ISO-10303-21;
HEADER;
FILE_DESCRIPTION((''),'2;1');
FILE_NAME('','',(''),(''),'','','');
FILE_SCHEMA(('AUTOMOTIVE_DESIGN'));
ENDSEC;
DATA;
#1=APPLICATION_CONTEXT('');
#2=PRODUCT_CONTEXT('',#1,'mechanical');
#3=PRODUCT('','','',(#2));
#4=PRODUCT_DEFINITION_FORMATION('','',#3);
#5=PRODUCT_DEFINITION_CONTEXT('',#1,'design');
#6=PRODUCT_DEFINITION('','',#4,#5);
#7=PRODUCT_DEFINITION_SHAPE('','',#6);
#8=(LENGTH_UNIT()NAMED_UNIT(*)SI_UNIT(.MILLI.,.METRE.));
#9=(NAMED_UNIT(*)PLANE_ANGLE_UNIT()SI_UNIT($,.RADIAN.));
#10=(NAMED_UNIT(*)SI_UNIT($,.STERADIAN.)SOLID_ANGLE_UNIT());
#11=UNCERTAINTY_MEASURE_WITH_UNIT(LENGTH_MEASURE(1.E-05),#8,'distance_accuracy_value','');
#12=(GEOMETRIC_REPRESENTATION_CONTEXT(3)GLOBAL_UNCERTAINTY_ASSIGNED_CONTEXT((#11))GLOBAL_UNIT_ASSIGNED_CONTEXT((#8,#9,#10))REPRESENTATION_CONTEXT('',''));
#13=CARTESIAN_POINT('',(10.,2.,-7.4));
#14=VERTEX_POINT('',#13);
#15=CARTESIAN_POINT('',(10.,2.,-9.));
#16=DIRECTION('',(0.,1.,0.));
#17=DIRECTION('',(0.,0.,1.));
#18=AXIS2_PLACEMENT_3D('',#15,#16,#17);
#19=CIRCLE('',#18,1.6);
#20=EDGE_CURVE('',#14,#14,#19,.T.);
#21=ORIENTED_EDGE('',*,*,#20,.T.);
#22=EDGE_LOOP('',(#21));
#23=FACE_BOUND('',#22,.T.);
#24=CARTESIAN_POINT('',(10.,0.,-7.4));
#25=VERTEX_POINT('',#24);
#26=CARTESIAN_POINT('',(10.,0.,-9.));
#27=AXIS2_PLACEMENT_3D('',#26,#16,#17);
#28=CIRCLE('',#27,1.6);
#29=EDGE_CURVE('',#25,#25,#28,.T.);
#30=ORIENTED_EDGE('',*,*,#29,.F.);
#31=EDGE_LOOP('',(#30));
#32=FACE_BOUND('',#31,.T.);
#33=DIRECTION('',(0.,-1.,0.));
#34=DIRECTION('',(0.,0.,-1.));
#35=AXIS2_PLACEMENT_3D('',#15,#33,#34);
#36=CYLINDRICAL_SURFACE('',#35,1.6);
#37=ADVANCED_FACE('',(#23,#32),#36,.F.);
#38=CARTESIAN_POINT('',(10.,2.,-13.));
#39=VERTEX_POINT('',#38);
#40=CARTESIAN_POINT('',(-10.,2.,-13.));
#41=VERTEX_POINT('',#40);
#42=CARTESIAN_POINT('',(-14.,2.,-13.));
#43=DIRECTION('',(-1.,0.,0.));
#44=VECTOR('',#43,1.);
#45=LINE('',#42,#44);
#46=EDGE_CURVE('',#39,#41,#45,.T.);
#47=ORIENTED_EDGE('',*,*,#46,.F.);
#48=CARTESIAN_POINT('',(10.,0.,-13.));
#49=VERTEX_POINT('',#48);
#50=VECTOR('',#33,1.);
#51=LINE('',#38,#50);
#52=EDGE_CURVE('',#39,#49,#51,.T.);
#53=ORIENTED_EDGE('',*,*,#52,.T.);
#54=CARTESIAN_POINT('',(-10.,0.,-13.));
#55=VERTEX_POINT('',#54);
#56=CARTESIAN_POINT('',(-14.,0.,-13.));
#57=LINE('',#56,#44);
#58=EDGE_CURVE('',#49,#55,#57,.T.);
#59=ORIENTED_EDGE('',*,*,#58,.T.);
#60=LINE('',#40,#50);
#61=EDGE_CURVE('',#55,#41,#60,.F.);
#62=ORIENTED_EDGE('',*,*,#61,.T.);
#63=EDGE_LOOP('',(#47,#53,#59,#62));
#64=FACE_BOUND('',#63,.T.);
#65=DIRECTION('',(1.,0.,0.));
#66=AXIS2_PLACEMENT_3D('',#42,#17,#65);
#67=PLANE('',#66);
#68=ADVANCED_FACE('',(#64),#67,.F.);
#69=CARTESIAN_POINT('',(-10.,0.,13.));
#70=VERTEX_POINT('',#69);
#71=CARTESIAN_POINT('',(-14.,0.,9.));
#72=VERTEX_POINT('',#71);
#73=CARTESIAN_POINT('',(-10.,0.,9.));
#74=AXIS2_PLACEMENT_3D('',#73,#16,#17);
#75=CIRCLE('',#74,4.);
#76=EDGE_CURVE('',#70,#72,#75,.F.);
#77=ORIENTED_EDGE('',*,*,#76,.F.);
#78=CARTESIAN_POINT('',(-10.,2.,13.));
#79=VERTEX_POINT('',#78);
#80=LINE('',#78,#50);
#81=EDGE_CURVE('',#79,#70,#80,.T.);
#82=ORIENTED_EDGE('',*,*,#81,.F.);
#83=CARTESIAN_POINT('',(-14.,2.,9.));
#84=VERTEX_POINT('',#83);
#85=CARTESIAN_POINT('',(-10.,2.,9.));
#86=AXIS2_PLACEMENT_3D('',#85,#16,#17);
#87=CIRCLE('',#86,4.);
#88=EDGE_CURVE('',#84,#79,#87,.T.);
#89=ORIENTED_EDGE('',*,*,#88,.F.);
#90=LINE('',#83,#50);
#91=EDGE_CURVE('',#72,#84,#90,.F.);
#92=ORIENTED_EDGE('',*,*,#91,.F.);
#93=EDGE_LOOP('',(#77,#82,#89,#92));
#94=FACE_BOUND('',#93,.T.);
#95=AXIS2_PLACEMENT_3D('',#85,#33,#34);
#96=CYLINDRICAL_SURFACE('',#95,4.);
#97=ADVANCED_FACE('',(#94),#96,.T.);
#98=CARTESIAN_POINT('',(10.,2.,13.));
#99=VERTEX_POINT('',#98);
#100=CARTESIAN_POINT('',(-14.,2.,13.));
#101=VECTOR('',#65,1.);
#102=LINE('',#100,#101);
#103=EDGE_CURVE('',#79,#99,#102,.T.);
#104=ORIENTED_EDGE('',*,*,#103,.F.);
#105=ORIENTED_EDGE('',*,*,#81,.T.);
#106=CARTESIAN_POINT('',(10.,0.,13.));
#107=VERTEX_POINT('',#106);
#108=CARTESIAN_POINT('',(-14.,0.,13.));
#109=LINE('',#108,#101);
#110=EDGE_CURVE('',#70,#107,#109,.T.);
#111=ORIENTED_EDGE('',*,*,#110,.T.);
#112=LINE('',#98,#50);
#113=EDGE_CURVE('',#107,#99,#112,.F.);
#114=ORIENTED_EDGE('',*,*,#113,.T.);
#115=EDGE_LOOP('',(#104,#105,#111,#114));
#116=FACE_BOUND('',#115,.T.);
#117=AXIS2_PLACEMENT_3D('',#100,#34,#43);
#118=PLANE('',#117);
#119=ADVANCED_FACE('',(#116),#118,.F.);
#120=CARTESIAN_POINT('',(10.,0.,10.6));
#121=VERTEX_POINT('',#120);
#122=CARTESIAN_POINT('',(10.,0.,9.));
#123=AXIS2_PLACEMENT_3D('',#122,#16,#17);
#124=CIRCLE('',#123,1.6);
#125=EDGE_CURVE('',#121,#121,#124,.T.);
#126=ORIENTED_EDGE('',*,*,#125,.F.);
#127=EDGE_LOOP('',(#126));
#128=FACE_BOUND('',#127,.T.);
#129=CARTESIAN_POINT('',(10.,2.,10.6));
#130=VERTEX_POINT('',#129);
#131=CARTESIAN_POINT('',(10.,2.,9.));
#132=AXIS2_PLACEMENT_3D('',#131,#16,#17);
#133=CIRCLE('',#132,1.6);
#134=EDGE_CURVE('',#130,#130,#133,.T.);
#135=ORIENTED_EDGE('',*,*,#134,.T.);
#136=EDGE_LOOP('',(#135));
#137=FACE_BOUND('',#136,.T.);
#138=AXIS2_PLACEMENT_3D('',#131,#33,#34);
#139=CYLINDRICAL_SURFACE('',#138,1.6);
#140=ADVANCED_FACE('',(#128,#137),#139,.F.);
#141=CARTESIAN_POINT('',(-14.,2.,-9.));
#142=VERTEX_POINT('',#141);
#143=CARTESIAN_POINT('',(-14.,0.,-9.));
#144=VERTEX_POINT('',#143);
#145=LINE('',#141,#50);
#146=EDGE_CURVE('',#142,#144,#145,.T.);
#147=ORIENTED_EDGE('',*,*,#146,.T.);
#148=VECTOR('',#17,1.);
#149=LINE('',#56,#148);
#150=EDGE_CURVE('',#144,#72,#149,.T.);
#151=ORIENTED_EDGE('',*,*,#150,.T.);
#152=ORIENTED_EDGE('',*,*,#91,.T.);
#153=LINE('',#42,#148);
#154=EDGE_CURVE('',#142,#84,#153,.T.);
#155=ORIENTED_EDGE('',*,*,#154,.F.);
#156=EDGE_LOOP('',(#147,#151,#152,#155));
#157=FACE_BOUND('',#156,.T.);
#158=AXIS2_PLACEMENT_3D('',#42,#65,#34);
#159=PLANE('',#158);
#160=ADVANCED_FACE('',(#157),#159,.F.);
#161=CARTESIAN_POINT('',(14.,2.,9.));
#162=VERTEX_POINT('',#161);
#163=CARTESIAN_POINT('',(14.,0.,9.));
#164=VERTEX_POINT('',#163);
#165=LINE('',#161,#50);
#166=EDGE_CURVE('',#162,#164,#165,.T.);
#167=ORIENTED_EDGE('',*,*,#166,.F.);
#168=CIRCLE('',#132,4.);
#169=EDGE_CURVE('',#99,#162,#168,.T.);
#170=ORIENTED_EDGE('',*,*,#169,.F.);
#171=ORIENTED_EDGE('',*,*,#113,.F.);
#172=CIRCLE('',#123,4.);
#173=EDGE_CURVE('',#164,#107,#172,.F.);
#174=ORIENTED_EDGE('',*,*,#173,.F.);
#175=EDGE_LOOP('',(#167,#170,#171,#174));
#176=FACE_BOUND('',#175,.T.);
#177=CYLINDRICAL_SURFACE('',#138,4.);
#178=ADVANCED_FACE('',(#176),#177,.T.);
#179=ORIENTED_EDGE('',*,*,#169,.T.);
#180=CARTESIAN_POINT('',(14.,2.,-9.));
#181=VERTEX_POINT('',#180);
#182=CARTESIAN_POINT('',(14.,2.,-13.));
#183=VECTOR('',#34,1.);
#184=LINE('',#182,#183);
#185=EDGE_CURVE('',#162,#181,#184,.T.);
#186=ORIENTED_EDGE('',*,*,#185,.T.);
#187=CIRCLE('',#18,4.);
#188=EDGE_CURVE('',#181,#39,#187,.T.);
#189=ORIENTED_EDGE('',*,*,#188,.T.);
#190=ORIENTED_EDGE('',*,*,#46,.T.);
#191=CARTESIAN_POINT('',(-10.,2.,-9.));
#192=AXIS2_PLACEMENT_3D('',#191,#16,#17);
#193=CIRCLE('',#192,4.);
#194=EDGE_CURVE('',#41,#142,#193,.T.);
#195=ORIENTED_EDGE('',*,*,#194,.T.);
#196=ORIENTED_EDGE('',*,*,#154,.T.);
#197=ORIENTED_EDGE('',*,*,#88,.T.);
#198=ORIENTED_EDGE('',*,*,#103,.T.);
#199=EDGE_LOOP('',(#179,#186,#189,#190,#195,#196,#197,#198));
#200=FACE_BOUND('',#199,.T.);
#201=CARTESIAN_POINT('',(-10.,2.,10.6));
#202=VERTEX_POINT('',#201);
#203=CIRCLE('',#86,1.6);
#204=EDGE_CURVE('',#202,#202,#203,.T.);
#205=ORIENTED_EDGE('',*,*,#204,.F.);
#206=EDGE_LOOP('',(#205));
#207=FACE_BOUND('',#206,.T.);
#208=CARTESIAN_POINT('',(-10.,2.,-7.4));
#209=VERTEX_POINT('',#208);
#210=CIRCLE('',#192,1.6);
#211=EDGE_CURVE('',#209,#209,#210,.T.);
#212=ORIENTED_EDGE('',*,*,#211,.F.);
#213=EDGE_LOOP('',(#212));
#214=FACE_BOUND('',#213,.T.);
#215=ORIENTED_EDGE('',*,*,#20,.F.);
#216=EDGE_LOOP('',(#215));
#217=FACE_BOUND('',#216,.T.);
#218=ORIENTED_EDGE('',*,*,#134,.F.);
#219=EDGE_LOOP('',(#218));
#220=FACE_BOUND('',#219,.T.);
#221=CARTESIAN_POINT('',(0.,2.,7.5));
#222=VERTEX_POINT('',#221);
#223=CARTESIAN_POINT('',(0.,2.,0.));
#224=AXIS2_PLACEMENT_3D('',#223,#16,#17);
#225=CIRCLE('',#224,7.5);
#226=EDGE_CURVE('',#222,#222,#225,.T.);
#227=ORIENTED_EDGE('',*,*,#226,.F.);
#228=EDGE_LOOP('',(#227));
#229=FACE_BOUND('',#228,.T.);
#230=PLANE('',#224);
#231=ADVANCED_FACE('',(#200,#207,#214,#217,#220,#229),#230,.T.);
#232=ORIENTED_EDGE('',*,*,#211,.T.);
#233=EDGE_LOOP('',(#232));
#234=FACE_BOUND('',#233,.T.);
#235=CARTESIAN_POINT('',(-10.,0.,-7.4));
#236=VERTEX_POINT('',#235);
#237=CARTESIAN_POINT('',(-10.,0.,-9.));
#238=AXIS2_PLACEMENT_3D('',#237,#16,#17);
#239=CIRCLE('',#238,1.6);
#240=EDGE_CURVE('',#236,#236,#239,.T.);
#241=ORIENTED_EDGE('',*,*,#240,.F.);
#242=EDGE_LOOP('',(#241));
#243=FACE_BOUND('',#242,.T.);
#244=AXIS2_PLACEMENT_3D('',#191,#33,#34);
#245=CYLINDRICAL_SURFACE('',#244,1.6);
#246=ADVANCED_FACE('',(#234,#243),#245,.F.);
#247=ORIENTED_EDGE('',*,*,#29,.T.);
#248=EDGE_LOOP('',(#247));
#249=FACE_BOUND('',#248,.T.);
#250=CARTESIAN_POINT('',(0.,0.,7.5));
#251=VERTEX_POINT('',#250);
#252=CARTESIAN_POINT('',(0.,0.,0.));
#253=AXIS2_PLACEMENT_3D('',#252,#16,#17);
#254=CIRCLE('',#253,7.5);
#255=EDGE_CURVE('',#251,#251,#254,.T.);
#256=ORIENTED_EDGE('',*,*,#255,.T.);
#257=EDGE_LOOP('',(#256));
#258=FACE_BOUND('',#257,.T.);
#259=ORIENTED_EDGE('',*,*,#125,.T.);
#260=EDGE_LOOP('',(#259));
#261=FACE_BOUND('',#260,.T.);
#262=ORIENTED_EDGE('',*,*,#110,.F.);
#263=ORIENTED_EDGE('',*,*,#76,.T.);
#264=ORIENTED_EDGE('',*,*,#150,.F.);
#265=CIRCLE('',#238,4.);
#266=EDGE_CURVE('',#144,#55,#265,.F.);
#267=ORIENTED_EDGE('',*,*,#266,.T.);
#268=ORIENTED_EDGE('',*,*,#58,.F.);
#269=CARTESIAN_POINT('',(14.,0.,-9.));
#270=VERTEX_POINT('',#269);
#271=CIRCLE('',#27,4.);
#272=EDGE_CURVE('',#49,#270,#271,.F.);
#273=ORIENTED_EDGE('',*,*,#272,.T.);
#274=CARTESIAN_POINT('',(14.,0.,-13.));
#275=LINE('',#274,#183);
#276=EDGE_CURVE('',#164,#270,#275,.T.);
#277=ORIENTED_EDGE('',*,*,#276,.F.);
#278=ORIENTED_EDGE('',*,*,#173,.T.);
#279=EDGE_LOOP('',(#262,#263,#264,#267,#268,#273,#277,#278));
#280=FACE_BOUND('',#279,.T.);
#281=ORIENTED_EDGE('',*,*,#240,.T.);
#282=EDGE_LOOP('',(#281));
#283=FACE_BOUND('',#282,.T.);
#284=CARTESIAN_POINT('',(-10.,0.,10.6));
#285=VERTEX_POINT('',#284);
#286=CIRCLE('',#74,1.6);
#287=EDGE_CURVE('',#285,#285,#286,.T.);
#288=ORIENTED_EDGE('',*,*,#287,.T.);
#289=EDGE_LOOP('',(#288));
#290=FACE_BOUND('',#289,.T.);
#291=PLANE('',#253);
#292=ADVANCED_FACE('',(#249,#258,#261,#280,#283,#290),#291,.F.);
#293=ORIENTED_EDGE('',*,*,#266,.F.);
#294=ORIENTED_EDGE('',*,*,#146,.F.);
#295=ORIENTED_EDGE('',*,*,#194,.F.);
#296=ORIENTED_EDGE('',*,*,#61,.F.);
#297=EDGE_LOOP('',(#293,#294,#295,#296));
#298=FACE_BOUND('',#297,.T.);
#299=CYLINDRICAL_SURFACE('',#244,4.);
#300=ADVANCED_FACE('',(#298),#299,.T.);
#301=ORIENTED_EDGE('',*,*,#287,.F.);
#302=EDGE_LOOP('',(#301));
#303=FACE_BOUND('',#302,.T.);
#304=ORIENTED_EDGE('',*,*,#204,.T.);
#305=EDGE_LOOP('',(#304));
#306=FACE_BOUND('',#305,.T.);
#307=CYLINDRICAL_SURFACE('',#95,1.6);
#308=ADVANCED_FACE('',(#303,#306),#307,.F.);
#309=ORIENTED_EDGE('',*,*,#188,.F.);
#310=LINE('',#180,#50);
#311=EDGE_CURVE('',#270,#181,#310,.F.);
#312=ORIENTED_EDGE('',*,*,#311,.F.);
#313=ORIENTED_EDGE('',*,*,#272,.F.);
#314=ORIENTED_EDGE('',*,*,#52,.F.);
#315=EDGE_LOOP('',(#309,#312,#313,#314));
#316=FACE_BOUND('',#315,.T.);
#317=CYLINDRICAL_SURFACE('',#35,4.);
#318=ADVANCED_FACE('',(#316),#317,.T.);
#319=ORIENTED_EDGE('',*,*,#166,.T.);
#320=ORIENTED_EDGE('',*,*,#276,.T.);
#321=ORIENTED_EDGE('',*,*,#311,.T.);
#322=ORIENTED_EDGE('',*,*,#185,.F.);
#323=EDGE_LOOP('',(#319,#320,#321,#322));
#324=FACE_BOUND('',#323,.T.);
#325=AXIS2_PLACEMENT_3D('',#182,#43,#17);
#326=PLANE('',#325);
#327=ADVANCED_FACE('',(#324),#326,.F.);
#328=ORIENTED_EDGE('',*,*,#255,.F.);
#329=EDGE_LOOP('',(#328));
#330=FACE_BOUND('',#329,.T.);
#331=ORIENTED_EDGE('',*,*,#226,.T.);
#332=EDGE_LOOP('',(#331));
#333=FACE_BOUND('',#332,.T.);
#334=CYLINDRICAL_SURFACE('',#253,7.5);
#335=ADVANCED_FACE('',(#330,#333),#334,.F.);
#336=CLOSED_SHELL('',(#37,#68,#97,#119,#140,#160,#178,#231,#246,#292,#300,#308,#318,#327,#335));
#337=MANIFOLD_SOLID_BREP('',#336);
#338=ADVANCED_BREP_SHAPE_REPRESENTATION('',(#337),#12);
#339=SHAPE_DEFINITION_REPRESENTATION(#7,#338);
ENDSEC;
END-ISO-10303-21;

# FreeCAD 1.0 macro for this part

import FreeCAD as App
import Part
import Sketcher

V = App.Vector
Q = App.Units.Quantity


def edges_at(feature, points):
    """Names of the edges that pass closest to the given points."""
    edges = feature.Shape.Edges
    near = lambda p: min(range(len(edges)), key=lambda i: edges[i].distToShape(Part.Vertex(*p))[0])
    return sorted({f"Edge{near(p) + 1}" for p in points})

doc = App.newDocument("Part")
body = doc.addObject("PartDesign::Body", "Body")

# Sketch on XZ plane
sketch1 = body.newObject("Sketcher::SketchObject", "Sketch")
sketch1.AttachmentSupport = (doc.getObject("XZ_Plane"), [""])
sketch1.MapMode = "FlatFace"
sketch1.addGeometry([
    Part.LineSegment(V(-14, -13, 0), V(-14, 13, 0)),  # 0
    Part.LineSegment(V(-14, 13, 0), V(14, 13, 0)),  # 1
    Part.LineSegment(V(14, 13, 0), V(14, -13, 0)),  # 2
    Part.LineSegment(V(14, -13, 0), V(-14, -13, 0)),  # 3
    Part.Circle(V(-10, 9, 0), V(0, 0, 1), 1.6),  # 4
    Part.Circle(V(10, 9, 0), V(0, 0, 1), 1.6),  # 5
    Part.Circle(V(-10, -9, 0), V(0, 0, 1), 1.6),  # 6
    Part.Circle(V(10, -9, 0), V(0, 0, 1), 1.6),  # 7
], False)
sketch1.addConstraint([
    Sketcher.Constraint("Coincident", 0, 2, 1, 1),
    Sketcher.Constraint("Coincident", 1, 2, 2, 1),
    Sketcher.Constraint("Coincident", 2, 2, 3, 1),
    Sketcher.Constraint("Coincident", 3, 2, 0, 1),
    Sketcher.Constraint("Vertical", 0),
    Sketcher.Constraint("Horizontal", 1),
    Sketcher.Constraint("Vertical", 2),
    Sketcher.Constraint("Horizontal", 3),
    Sketcher.Constraint("Equal", 4, 5),
    Sketcher.Constraint("Equal", 5, 6),
    Sketcher.Constraint("Equal", 6, 7),
    Sketcher.Constraint("Symmetric", 5, 3, 6, 3, -1, 1),
    Sketcher.Constraint("Symmetric", 4, 3, 7, 3, -1, 1),
    Sketcher.Constraint("Symmetric", 0, 2, 2, 2, -1, 1),
    Sketcher.Constraint("Symmetric", 4, 3, 5, 3, -2),
    Sketcher.Constraint("Diameter", 4, Q("3.2 mm")),
    Sketcher.Constraint("DistanceX", 1, 1, 1, 2, Q("28 mm")),
    Sketcher.Constraint("DistanceY", 0, 1, 0, 2, Q("26 mm")),
    Sketcher.Constraint("DistanceX", 4, 3, -1, 1, Q("10 mm")),
    Sketcher.Constraint("DistanceY", -1, 1, 4, 3, Q("9 mm")),
])
pad1 = body.newObject("PartDesign::Pad", "Pad")
pad1.Profile = sketch1
pad1.Length = 2
pad1.Reversed = True

# Sketch on XZ plane
sketch2 = body.newObject("Sketcher::SketchObject", "Sketch001")
sketch2.AttachmentSupport = (doc.getObject("XZ_Plane"), [""])
sketch2.MapMode = "FlatFace"
sketch2.AttachmentOffset = App.Placement(V(0, 0, -2), App.Rotation())
sketch2.addGeometry(Part.Circle(V(0, 0, 0), V(0, 0, 1), 7.5), False)
sketch2.addConstraint([
    Sketcher.Constraint("Coincident", 0, 3, -1, 1),
    Sketcher.Constraint("Diameter", 0, Q("15 mm")),
])
pocket1 = body.newObject("PartDesign::Pocket", "Pocket")
pocket1.Profile = sketch2
pocket1.Length = 2
pocket1.Reversed = True
doc.recompute()

fillet = body.newObject("PartDesign::Fillet", "Fillet")
fillet.Base = (pocket1, edges_at(pocket1, [
    (14, 1, 13),
    (-14, 1, 13),
    (-14, 1, -13),
    (14, 1, -13),
]))
fillet.Radius = 4

doc.recompute()
